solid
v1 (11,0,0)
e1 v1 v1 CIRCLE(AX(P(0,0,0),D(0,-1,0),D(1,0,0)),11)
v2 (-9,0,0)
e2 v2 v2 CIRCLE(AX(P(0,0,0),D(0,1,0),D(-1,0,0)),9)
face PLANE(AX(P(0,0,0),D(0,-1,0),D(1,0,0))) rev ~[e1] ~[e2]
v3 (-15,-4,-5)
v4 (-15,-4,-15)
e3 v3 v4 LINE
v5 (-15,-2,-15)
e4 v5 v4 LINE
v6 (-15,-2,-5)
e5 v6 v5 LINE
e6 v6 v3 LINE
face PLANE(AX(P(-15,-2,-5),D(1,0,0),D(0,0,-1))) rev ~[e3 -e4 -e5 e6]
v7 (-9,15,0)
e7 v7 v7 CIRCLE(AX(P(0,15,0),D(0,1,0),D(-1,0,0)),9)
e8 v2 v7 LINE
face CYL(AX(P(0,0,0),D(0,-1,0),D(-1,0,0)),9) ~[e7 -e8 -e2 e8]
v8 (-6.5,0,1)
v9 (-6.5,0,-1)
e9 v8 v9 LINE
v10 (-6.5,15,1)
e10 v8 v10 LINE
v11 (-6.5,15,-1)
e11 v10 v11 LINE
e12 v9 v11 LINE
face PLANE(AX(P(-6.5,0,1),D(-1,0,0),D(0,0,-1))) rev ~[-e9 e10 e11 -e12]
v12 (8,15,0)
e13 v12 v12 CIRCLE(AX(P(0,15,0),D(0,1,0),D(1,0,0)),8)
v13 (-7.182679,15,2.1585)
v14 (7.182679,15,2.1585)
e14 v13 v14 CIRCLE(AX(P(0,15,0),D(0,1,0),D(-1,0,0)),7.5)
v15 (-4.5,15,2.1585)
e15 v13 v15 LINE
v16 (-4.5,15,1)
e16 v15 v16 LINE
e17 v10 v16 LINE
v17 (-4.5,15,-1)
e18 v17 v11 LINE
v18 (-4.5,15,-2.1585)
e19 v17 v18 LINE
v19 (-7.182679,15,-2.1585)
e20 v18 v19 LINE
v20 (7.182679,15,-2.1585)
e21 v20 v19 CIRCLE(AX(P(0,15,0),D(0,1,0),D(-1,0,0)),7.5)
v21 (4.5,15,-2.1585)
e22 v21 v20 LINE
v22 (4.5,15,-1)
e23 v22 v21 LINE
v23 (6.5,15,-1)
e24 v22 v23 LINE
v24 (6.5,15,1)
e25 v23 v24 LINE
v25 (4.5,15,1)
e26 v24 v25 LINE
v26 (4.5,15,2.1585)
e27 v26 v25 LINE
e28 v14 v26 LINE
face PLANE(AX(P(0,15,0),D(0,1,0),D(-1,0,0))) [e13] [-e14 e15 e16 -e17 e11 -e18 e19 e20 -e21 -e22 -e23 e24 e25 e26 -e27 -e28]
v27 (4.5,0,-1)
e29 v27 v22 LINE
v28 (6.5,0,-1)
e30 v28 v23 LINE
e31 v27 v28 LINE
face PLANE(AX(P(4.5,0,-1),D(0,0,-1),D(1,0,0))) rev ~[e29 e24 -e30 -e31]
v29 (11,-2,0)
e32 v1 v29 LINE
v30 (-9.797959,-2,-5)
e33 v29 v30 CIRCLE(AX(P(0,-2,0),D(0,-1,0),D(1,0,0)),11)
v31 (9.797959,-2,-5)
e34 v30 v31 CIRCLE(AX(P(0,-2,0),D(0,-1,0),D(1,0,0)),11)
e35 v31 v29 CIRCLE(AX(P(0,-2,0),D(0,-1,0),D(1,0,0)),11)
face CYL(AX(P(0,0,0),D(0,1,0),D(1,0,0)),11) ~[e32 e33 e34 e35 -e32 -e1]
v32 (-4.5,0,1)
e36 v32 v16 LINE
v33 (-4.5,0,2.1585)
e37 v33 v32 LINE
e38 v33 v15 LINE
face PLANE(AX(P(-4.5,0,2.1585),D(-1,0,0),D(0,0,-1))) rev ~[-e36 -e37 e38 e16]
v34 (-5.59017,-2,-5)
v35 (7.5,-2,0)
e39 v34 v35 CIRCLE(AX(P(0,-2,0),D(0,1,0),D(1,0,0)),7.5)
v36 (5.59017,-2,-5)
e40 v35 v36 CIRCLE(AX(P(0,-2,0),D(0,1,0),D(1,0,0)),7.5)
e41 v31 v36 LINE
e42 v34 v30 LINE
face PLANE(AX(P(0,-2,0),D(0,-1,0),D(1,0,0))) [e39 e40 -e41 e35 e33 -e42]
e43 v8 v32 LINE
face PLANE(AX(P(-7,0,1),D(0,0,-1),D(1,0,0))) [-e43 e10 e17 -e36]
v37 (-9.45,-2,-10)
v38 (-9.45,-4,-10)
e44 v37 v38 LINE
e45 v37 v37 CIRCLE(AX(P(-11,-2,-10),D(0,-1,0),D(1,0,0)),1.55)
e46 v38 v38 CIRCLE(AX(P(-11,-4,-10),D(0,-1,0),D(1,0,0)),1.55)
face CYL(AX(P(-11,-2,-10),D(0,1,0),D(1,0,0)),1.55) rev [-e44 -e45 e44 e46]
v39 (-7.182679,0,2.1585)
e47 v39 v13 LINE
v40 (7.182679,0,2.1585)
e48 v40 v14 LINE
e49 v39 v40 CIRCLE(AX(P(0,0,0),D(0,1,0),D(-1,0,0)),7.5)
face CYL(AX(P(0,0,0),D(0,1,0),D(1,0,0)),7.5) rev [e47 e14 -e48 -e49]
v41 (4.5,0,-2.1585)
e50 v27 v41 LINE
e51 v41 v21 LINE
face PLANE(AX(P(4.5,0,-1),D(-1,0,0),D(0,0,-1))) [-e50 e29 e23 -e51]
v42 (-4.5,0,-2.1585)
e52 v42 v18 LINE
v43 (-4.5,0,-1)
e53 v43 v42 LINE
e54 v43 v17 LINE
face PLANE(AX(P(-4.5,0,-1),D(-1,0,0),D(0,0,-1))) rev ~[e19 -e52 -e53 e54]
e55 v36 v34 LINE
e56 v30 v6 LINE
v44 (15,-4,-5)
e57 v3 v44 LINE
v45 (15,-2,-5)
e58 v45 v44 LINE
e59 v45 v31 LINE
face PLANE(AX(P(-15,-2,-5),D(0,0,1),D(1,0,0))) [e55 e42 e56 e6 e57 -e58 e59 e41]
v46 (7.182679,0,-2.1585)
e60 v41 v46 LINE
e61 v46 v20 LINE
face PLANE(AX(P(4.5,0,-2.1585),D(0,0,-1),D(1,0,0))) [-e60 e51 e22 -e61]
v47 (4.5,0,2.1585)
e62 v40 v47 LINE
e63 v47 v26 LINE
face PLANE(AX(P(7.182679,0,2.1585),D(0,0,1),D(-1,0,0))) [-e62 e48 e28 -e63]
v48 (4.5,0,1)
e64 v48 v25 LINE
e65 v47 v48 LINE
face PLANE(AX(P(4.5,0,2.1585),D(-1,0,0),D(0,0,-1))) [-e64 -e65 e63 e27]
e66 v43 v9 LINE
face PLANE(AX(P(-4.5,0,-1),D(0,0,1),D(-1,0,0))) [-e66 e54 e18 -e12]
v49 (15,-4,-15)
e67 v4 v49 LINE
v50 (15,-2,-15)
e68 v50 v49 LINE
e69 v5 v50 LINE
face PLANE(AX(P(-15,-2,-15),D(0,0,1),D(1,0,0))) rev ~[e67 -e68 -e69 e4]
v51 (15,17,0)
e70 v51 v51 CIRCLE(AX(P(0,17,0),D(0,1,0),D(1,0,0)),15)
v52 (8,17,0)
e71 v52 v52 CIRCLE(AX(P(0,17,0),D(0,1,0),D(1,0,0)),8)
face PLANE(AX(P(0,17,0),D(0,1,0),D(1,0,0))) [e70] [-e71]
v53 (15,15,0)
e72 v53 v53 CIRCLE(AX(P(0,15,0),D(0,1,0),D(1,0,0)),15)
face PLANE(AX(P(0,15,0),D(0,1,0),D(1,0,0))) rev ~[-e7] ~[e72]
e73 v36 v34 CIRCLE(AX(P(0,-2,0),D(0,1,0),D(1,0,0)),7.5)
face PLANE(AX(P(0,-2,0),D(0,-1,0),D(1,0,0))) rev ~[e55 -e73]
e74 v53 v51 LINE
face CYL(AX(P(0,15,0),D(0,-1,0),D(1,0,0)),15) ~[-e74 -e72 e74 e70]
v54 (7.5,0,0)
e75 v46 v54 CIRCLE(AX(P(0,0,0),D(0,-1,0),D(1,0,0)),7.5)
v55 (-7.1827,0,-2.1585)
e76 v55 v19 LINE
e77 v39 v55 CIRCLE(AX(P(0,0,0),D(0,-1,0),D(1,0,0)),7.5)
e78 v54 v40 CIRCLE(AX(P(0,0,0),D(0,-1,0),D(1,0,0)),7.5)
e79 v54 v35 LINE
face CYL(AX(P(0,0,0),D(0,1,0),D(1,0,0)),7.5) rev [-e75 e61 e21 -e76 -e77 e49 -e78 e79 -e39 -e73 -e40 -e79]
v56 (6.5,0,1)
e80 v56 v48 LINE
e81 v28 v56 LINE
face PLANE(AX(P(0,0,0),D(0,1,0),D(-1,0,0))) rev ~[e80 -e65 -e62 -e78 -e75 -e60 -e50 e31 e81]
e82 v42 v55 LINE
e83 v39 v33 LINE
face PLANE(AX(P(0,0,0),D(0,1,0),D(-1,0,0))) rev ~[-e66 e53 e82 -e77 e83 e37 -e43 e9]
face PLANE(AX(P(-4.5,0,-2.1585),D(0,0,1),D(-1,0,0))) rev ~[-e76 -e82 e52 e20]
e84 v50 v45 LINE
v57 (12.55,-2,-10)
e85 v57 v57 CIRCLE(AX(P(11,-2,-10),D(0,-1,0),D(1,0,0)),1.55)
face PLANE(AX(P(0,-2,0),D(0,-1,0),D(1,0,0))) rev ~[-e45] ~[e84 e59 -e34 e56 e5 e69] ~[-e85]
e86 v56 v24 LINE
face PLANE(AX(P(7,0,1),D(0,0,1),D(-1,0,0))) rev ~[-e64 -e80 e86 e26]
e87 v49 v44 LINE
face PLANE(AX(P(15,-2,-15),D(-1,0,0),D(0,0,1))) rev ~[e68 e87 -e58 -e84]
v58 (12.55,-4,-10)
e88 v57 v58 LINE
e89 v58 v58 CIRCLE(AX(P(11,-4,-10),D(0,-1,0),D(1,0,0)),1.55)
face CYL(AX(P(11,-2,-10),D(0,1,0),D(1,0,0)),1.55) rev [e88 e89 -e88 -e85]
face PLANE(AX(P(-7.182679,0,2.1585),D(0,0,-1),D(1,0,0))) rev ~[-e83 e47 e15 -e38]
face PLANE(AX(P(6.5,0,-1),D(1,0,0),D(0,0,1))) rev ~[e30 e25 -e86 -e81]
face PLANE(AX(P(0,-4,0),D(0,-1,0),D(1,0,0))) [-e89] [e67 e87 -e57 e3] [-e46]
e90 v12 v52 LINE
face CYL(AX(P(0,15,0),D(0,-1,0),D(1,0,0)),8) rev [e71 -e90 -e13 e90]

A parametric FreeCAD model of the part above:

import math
import FreeCAD as App
import Part
import Sketcher


def add_polygon(sketch, points):
    """Adds a closed chain of lines whose ends are joined by coincident constraints."""
    first, n = sketch.GeometryCount, len(points)
    for a, b in zip(points, points[1:] + points[:1]):
        sketch.addGeometry(Part.LineSegment(App.Vector(*a, 0), App.Vector(*b, 0)), False)
    for i in range(n):
        sketch.addConstraint(Sketcher.Constraint("Coincident", first + i, 2, first + (i + 1) % n, 1))

doc = App.newDocument("Part")
body = doc.addObject("PartDesign::Body", "Body")

sketch1 = doc.addObject("Sketcher::SketchObject", "Sketch")
body.addObject(sketch1)
sketch1.AttachmentSupport = (doc.XZ_Plane, [""])
sketch1.MapMode = "FlatFace"
sketch1.addGeometry([
    Part.Circle(App.Vector(0, 0, 0), App.Vector(0, 0, 1), 9),
    Part.LineSegment(App.Vector(-4.5, -2.1585, 0), App.Vector(-7.182679, -2.1585, 0)),
    Part.ArcOfCircle(Part.Circle(App.Vector(0, 0, 0), App.Vector(0, 0, 1), 7.5), math.radians(-163.273709), math.radians(-16.726291)),
    Part.LineSegment(App.Vector(7.182679, -2.1585, 0), App.Vector(4.5, -2.1585, 0)),
    Part.LineSegment(App.Vector(4.5, -2.1585, 0), App.Vector(4.5, -1, 0)),
    Part.LineSegment(App.Vector(4.5, -1, 0), App.Vector(7, -1, 0)),
    Part.LineSegment(App.Vector(7, -1, 0), App.Vector(7, 1, 0)),
    Part.LineSegment(App.Vector(7, 1, 0), App.Vector(4.5, 1, 0)),
    Part.LineSegment(App.Vector(4.5, 1, 0), App.Vector(4.5, 2.1585, 0)),
    Part.LineSegment(App.Vector(4.5, 2.1585, 0), App.Vector(7.182679, 2.1585, 0)),
    Part.ArcOfCircle(Part.Circle(App.Vector(0, 0, 0), App.Vector(0, 0, 1), 7.5), math.radians(16.726291), math.radians(163.273709)),
    Part.LineSegment(App.Vector(-7.182679, 2.1585, 0), App.Vector(-4.5, 2.1585, 0)),
    Part.LineSegment(App.Vector(-4.5, 2.1585, 0), App.Vector(-4.5, 1, 0)),
    Part.LineSegment(App.Vector(-4.5, 1, 0), App.Vector(-7, 1, 0)),
    Part.LineSegment(App.Vector(-7, 1, 0), App.Vector(-7, -1, 0)),
    Part.LineSegment(App.Vector(-7, -1, 0), App.Vector(-4.5, -1, 0)),
    Part.LineSegment(App.Vector(-4.5, -1, 0), App.Vector(-4.5, -2.1585, 0)),
], False)
sketch1.addConstraint([
    Sketcher.Constraint("Coincident", 1, 2, 2, 1),
    Sketcher.Constraint("Coincident", 2, 2, 3, 1),
    Sketcher.Constraint("Coincident", 3, 2, 4, 1),
    Sketcher.Constraint("Coincident", 4, 2, 5, 1),
    Sketcher.Constraint("Coincident", 5, 2, 6, 1),
    Sketcher.Constraint("Coincident", 6, 2, 7, 1),
    Sketcher.Constraint("Coincident", 7, 2, 8, 1),
    Sketcher.Constraint("Coincident", 8, 2, 9, 1),
    Sketcher.Constraint("Coincident", 9, 2, 10, 1),
    Sketcher.Constraint("Coincident", 10, 2, 11, 1),
    Sketcher.Constraint("Coincident", 11, 2, 12, 1),
    Sketcher.Constraint("Coincident", 12, 2, 13, 1),
    Sketcher.Constraint("Coincident", 13, 2, 14, 1),
    Sketcher.Constraint("Coincident", 14, 2, 15, 1),
    Sketcher.Constraint("Coincident", 15, 2, 16, 1),
    Sketcher.Constraint("Coincident", 16, 2, 1, 1),
    Sketcher.Constraint("Horizontal", 1),
    Sketcher.Constraint("Horizontal", 3),
    Sketcher.Constraint("Vertical", 4),
    Sketcher.Constraint("Horizontal", 5),
    Sketcher.Constraint("Vertical", 6),
    Sketcher.Constraint("Horizontal", 7),
    Sketcher.Constraint("Vertical", 8),
    Sketcher.Constraint("Horizontal", 9),
    Sketcher.Constraint("Horizontal", 11),
    Sketcher.Constraint("Vertical", 12),
    Sketcher.Constraint("Horizontal", 13),
    Sketcher.Constraint("Vertical", 14),
    Sketcher.Constraint("Horizontal", 15),
    Sketcher.Constraint("Vertical", 16),
    Sketcher.Constraint("Coincident", 0, 3, -1, 1),
    Sketcher.Constraint("Coincident", 2, 3, -1, 1),
    Sketcher.Constraint("Coincident", 10, 3, -1, 1),
    Sketcher.Constraint("Equal", 2, 10),
    Sketcher.Constraint("Symmetric", 3, 2, 11, 2, -1, 1),
    Sketcher.Constraint("Symmetric", 5, 2, 13, 2, -1, 1),
    Sketcher.Constraint("Symmetric", 7, 2, 15, 2, -1, 1),
    Sketcher.Constraint("Symmetric", 8, 2, 11, 2, -2),
    Sketcher.Constraint("Horizontal", 1, 2, 2, 2),
    Sketcher.Constraint("Horizontal", 7, 2, 12, 2),
    Sketcher.Constraint("Diameter", 0, 18.0),
    Sketcher.Constraint("Radius", 2, 7.5),
    Sketcher.Constraint("DistanceY", 6, 1, 6, 2, 2.0),
    Sketcher.Constraint("DistanceX", 5, 1, 5, 2, 2.5),
    Sketcher.Constraint("DistanceX", -1, 1, 5, 2, 7.0),
    Sketcher.Constraint("DistanceX", 1, 2, 1, 1, 2.6827),
])
pad1 = doc.addObject("PartDesign::Pad", "Pad")
body.addObject(pad1)
pad1.Profile = sketch1
pad1.Length = 15
pad1.Reversed = True

sketch2 = doc.addObject("Sketcher::SketchObject", "Sketch001")
body.addObject(sketch2)
sketch2.AttachmentSupport = (doc.XZ_Plane, [""])
sketch2.MapMode = "FlatFace"
sketch2.AttachmentOffset = App.Placement(App.Vector(0, 0, -15), App.Rotation())
sketch2.addGeometry([
    Part.Circle(App.Vector(0, 0, 0), App.Vector(0, 0, 1), 15),
    Part.Circle(App.Vector(0, 0, 0), App.Vector(0, 0, 1), 8),
], False)
sketch2.addConstraint([
    Sketcher.Constraint("Coincident", 0, 3, -1, 1),
    Sketcher.Constraint("Coincident", 1, 3, -1, 1),
    Sketcher.Constraint("Diameter", 0, 30.0),
    Sketcher.Constraint("Diameter", 1, 16.0),
])
pad2 = doc.addObject("PartDesign::Pad", "Pad001")
body.addObject(pad2)
pad2.Profile = sketch2
pad2.Length = 2
pad2.Reversed = True

sketch3 = doc.addObject("Sketcher::SketchObject", "Sketch002")
body.addObject(sketch3)
sketch3.AttachmentSupport = (doc.XZ_Plane, [""])
sketch3.MapMode = "FlatFace"
sketch3.addGeometry([
    Part.Circle(App.Vector(0, 0, 0), App.Vector(0, 0, 1), 11),
    Part.Circle(App.Vector(0, 0, 0), App.Vector(0, 0, 1), 7.5),
], False)
sketch3.addConstraint([
    Sketcher.Constraint("Coincident", 0, 3, -1, 1),
    Sketcher.Constraint("Coincident", 1, 3, -1, 1),
    Sketcher.Constraint("Diameter", 0, 22.0),
    Sketcher.Constraint("Diameter", 1, 15.0),
])
pad3 = doc.addObject("PartDesign::Pad", "Pad002")
body.addObject(pad3)
pad3.Profile = sketch3
pad3.Length = 2

sketch4 = doc.addObject("Sketcher::SketchObject", "Sketch003")
body.addObject(sketch4)
sketch4.AttachmentSupport = (doc.XZ_Plane, [""])
sketch4.MapMode = "FlatFace"
sketch4.AttachmentOffset = App.Placement(App.Vector(0, 0, 2), App.Rotation())
add_polygon(sketch4, [(-15, -5), (-15, -15), (15, -15), (15, -5)])
sketch4.addGeometry(Part.Circle(App.Vector(-11, -10, 0), App.Vector(0, 0, 1), 1.55), False)
sketch4.addGeometry(Part.Circle(App.Vector(11, -10, 0), App.Vector(0, 0, 1), 1.55), False)
sketch4.addConstraint([
    Sketcher.Constraint("Vertical", 0),
    Sketcher.Constraint("Horizontal", 1),
    Sketcher.Constraint("Vertical", 2),
    Sketcher.Constraint("Horizontal", 3),
    Sketcher.Constraint("Equal", 4, 5),
    Sketcher.Constraint("Symmetric", 4, 3, 5, 3, -2),
    Sketcher.Constraint("Diameter", 4, 3.1),
    Sketcher.Constraint("DistanceX", 1, 1, 1, 2, 30.0),
    Sketcher.Constraint("DistanceY", 0, 2, 0, 1, 10.0),
    Sketcher.Constraint("DistanceX", 4, 3, -1, 1, 11.0),
    Sketcher.Constraint("DistanceY", 4, 3, -1, 1, 10.0),
    Sketcher.Constraint("DistanceY", 2, 2, -1, 1, 5.0),
    Sketcher.Constraint("DistanceX", 0, 2, -1, 1, 15.0),
])
pad4 = doc.addObject("PartDesign::Pad", "Pad003")
body.addObject(pad4)
pad4.Profile = sketch4
pad4.Length = 2

sketch5 = doc.addObject("Sketcher::SketchObject", "Sketch004")
body.addObject(sketch5)
sketch5.AttachmentSupport = (doc.XZ_Plane, [""])
sketch5.MapMode = "FlatFace"
add_polygon(sketch5, [(6.5, -1), (7, -1), (7, 1), (6.5, 1)])
add_polygon(sketch5, [(-7, 1), (-7, -1), (-6.5, -1), (-6.5, 1)])
sketch5.addConstraint([
    Sketcher.Constraint("Horizontal", 0),
    Sketcher.Constraint("Vertical", 1),
    Sketcher.Constraint("Horizontal", 2),
    Sketcher.Constraint("Vertical", 3),
    Sketcher.Constraint("Vertical", 4),
    Sketcher.Constraint("Horizontal", 5),
    Sketcher.Constraint("Vertical", 6),
    Sketcher.Constraint("Horizontal", 7),
    Sketcher.Constraint("Symmetric", 1, 2, 4, 2, -1, 1),
    Sketcher.Constraint("Symmetric", 3, 2, 6, 2, -1, 1),
    Sketcher.Constraint("Horizontal", 3, 2, 4, 2),
    Sketcher.Constraint("DistanceX", 0, 1, 0, 2, 0.5),
    Sketcher.Constraint("DistanceY", 1, 1, 1, 2, 2.0),
    Sketcher.Constraint("DistanceX", -1, 1, 0, 2, 7.0),
])
pad5 = doc.addObject("PartDesign::Pad", "Pad004")
body.addObject(pad5)
pad5.Profile = sketch5
pad5.Length = 15
pad5.Reversed = True

doc.recompute()
